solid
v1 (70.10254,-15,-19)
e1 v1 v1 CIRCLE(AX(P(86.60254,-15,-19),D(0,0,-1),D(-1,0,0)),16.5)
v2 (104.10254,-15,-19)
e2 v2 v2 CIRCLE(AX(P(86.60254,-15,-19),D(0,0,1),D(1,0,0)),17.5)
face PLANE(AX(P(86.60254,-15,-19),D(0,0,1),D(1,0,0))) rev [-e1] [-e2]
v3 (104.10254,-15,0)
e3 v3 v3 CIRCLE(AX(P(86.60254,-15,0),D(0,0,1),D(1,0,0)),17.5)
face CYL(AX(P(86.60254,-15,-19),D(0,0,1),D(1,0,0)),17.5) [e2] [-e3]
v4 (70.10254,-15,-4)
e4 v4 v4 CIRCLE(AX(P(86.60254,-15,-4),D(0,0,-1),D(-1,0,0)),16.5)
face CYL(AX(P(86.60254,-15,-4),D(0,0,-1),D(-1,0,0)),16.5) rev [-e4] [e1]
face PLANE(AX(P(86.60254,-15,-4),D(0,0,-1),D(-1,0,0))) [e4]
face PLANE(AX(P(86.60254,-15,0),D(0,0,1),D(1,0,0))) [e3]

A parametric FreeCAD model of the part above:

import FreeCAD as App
import Part
import Sketcher

V = App.Vector
Q = App.Units.Quantity

doc = App.newDocument("Part")
body = doc.addObject("PartDesign::Body", "Body")

sketch1 = body.newObject("Sketcher::SketchObject", "Sketch")
sketch1.AttachmentSupport = (doc.getObject("XY_Plane"), [""])
sketch1.MapMode = "FlatFace"
sketch1.addGeometry(Part.Circle(V(87, -15, 0), V(0, 0, 1), 18), False)
sketch1.addConstraint([
    Sketcher.Constraint("Diameter", 0, Q("35 mm")),
    Sketcher.Constraint("DistanceY", 0, 3, -1, 1, Q("15 mm")),
    Sketcher.Constraint("DistanceX", -1, 1, 0, 3, Q("86.60254 mm")),
])
pad1 = body.newObject("PartDesign::Pad", "Pad")
pad1.Profile = sketch1
pad1.Length = 19
pad1.Reversed = True

sketch2 = body.newObject("Sketcher::SketchObject", "Sketch001")
sketch2.AttachmentSupport = (doc.getObject("XY_Plane"), [""])
sketch2.MapMode = "FlatFace"
sketch2.AttachmentOffset = App.Placement(V(0, 0, -19), App.Rotation())
sketch2.addGeometry(Part.Circle(V(87, -15, 0), V(0, 0, 1), 16), False)
sketch2.addConstraint([
    Sketcher.Constraint("Diameter", 0, Q("33 mm")),
    Sketcher.Constraint("DistanceY", 0, 3, -1, 1, Q("15 mm")),
    Sketcher.Constraint("DistanceX", -1, 1, 0, 3, Q("86.60254 mm")),
])
pocket1 = body.newObject("PartDesign::Pocket", "Pocket")
pocket1.Profile = sketch2
pocket1.Length = 15
pocket1.Reversed = True

doc.recompute()
